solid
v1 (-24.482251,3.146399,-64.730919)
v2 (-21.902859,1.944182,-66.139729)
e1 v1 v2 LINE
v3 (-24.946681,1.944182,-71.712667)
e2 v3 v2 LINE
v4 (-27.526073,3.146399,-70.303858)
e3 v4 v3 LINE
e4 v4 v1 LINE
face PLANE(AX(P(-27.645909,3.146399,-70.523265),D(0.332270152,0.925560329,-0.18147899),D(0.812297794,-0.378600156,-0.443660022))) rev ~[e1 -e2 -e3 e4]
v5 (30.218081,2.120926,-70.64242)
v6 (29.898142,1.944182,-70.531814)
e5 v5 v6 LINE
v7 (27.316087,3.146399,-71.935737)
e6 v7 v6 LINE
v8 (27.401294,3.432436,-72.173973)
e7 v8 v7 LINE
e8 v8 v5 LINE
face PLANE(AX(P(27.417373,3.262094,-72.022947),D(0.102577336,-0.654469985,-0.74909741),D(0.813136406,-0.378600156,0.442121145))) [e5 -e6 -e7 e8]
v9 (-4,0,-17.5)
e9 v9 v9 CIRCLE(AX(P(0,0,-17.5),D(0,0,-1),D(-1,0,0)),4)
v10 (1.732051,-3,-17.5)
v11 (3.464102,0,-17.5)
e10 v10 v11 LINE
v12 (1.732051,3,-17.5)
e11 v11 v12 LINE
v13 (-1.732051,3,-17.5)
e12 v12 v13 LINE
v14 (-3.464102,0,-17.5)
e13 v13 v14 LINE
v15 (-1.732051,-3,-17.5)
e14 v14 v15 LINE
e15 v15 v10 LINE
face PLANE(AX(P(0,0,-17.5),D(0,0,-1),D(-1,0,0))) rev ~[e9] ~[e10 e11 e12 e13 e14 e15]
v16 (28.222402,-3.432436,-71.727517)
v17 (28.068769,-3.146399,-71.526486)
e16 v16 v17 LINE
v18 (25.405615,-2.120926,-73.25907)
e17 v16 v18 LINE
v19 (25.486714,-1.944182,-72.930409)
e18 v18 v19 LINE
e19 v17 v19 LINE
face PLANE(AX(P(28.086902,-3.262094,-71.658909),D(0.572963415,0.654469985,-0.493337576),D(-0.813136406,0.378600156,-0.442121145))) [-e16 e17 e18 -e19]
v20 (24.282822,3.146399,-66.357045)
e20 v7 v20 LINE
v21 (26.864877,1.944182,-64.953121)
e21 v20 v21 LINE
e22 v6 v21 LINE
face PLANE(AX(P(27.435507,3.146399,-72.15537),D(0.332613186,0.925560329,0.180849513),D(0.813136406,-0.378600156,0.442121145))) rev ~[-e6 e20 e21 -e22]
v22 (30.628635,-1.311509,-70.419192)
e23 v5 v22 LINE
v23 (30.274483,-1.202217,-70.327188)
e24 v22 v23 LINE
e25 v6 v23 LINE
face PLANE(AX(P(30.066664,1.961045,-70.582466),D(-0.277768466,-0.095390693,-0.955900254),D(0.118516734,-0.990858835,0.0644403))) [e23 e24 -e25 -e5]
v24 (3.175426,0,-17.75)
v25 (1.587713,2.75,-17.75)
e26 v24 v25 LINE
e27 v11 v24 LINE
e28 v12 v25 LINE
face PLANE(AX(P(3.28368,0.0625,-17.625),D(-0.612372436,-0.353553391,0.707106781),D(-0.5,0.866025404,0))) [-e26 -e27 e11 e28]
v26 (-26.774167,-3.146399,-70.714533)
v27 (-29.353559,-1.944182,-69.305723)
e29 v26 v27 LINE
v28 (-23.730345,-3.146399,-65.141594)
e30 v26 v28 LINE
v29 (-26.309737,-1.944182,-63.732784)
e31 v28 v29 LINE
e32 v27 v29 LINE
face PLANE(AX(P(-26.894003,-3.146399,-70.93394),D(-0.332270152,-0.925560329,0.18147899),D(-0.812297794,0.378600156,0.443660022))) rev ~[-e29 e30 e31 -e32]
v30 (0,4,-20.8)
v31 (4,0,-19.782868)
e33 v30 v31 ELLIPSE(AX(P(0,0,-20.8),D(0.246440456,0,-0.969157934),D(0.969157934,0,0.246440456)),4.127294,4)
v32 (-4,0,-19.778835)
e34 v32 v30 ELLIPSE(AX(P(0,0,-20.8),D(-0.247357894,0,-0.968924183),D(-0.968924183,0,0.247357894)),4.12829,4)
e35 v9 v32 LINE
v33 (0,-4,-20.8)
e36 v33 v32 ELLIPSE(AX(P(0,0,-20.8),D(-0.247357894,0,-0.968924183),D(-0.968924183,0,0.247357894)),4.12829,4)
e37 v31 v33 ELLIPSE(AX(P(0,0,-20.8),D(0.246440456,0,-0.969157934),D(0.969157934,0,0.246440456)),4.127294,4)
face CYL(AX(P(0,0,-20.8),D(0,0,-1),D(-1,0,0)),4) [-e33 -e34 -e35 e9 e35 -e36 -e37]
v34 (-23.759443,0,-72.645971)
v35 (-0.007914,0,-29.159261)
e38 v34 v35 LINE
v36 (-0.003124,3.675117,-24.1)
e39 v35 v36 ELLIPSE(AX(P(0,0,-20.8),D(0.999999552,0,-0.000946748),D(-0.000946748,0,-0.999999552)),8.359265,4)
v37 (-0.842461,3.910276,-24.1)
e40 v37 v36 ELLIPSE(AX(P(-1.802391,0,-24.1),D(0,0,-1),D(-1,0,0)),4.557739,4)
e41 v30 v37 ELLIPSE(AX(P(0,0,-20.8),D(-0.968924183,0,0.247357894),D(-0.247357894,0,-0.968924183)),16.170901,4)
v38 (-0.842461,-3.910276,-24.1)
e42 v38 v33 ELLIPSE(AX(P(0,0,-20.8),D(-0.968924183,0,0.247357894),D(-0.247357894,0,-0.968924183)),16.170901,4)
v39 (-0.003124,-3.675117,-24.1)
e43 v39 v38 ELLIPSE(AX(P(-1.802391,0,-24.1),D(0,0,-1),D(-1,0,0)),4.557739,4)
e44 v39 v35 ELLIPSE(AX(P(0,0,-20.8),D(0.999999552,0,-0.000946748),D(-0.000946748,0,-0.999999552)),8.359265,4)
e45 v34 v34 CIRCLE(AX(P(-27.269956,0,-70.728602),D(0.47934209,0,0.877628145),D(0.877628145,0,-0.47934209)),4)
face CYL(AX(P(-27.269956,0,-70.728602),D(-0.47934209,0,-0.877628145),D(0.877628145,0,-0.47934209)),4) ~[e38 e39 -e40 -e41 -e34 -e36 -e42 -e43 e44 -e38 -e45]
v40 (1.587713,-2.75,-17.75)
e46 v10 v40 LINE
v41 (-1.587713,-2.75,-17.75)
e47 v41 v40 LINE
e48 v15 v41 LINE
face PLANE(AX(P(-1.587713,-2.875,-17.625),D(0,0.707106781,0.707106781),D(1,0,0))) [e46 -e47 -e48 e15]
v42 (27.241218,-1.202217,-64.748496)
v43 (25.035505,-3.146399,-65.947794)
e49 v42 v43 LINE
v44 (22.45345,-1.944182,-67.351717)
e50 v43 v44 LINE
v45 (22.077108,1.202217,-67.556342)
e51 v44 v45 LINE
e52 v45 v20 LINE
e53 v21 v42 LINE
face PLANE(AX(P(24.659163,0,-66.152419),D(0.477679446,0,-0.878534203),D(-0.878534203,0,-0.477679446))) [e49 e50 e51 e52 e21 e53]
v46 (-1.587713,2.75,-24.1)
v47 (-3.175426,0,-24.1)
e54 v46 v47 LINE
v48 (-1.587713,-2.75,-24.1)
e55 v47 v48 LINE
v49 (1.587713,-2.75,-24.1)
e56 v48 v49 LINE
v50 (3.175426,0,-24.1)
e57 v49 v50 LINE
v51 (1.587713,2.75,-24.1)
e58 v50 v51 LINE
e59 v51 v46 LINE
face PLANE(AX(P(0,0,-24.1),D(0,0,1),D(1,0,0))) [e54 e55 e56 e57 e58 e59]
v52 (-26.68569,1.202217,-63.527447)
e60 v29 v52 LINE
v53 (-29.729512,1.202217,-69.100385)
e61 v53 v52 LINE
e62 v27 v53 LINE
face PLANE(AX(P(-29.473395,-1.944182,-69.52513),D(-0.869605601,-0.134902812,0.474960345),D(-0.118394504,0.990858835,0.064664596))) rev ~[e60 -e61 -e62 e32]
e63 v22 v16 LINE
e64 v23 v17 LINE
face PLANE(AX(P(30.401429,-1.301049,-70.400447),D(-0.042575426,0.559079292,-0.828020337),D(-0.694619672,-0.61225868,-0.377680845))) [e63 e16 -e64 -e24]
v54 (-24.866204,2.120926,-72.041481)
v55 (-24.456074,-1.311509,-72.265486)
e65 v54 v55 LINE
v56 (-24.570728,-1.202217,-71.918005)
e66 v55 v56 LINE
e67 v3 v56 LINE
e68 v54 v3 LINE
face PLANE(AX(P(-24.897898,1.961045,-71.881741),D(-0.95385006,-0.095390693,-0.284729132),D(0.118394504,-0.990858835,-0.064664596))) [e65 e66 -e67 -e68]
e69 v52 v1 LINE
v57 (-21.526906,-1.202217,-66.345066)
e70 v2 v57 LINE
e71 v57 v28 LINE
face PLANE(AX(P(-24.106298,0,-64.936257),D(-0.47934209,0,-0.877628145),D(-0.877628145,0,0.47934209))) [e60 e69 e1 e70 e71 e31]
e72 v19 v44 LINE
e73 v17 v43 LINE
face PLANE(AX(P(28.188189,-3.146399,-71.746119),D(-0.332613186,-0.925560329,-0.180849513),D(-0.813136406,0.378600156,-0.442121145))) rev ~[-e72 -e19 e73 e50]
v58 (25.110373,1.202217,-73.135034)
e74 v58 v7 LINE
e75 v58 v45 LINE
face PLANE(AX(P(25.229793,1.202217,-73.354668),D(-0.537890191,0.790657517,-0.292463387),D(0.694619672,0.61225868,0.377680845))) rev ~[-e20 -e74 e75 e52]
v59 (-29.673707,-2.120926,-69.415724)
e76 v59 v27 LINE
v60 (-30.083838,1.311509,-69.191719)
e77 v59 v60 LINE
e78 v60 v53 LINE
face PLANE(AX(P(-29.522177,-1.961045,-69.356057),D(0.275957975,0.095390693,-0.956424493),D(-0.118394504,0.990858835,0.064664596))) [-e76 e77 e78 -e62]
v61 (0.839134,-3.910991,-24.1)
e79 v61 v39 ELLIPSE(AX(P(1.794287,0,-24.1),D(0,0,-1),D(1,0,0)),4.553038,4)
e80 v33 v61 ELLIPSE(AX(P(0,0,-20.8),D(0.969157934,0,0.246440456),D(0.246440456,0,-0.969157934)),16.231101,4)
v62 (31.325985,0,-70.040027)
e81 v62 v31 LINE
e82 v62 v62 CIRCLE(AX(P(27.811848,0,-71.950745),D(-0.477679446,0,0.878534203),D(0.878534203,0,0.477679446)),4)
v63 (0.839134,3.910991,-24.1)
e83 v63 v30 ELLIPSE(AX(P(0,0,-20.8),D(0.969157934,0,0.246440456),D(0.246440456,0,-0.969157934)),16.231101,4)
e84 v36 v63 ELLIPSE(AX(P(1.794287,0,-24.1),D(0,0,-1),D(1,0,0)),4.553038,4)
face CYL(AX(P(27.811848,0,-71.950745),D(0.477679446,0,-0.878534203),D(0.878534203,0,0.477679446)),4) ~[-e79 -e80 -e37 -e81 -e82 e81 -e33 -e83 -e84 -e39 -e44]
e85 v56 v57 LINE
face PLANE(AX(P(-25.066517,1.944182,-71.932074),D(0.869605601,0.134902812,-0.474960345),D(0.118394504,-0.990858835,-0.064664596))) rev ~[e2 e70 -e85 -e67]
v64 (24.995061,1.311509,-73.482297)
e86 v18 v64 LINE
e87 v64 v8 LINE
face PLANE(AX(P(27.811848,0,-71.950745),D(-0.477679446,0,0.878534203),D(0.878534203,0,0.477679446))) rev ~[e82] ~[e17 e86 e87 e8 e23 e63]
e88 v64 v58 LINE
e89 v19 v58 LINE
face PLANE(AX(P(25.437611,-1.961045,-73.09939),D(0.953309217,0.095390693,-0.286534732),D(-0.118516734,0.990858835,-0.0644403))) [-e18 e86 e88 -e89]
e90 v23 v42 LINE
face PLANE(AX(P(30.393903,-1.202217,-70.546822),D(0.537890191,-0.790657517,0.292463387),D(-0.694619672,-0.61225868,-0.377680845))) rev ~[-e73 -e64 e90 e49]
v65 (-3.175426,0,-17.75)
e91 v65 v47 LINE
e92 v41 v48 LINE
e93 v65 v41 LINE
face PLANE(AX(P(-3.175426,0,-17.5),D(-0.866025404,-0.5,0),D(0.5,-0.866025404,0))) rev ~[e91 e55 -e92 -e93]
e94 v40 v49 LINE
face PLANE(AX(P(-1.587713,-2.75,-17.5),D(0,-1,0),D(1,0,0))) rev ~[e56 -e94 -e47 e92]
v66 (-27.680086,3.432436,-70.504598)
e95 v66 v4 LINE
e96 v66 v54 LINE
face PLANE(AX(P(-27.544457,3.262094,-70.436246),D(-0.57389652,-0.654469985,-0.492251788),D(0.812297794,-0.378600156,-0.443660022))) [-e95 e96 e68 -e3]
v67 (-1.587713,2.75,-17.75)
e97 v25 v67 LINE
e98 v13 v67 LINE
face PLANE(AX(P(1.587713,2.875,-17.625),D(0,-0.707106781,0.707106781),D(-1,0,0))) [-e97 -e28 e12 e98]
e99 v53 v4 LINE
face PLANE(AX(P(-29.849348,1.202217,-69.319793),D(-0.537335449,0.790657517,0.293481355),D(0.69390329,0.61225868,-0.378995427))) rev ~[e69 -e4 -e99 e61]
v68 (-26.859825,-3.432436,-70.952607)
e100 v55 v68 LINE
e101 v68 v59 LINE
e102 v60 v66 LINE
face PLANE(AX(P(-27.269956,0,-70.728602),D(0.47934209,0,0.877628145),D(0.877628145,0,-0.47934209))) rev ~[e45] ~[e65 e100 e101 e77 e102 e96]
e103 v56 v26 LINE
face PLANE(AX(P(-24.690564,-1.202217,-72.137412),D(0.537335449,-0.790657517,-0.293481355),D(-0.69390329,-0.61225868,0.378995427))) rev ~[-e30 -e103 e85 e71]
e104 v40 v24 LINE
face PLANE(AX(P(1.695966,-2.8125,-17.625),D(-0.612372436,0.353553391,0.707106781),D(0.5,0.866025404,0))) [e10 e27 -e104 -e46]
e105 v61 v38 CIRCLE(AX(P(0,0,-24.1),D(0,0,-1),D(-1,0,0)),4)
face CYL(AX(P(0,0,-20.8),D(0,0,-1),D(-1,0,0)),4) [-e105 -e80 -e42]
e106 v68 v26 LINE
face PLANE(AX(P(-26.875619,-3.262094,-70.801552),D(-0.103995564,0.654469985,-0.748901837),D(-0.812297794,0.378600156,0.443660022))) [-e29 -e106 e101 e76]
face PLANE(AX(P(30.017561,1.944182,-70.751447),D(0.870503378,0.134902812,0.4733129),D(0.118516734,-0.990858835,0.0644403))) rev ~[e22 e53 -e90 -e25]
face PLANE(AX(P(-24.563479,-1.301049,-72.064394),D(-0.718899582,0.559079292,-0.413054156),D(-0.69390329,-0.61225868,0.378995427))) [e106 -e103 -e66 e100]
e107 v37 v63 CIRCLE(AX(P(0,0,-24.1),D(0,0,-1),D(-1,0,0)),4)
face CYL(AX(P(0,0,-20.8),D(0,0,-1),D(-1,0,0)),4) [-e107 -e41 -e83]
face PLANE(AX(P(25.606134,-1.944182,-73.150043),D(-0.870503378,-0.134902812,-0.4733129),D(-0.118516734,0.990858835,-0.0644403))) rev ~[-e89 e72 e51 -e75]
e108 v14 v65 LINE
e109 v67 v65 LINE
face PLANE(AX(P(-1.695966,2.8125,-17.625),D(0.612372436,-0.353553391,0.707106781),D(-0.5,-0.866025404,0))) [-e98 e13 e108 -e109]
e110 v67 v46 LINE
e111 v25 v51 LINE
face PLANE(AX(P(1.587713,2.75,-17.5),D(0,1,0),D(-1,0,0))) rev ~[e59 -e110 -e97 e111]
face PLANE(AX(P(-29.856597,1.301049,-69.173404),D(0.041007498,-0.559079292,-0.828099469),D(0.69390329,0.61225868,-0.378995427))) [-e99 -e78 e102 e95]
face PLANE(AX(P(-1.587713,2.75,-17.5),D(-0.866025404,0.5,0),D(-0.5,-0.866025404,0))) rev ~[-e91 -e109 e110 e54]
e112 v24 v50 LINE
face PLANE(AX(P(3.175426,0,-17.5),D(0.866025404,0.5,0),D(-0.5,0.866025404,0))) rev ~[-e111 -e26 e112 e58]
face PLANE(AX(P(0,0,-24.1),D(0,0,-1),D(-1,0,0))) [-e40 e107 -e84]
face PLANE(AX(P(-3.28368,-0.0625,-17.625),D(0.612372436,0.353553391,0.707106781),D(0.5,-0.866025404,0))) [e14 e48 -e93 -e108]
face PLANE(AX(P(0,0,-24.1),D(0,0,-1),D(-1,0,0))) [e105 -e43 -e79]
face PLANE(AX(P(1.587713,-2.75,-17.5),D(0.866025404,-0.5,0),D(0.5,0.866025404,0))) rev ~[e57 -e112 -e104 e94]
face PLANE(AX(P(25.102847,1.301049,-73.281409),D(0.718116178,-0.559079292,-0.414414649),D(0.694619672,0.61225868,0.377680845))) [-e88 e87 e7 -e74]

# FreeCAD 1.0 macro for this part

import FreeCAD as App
import Part
import Sketcher
from FreeCAD import Vector
Q = App.Units.Quantity


def edges_at(feature, points):
    """Names of the edges that pass closest to the given points."""
    edges = feature.Shape.Edges
    near = lambda p: min(range(len(edges)), key=lambda i: edges[i].distToShape(Part.Vertex(*p))[0])
    return sorted({f"Edge{near(p) + 1}" for p in points})

doc = App.newDocument("Part")
body = doc.addObject("PartDesign::Body", "Body")

# Sketch on XZ plane
sketch1 = body.newObject("Sketcher::SketchObject", "Sketch")
sketch1.AttachmentSupport = (doc.getObject("XZ_Plane"), [""])
sketch1.MapMode = "FlatFace"
sketch1.addGeometry(Part.LineSegment(Vector(-4, -24.1, 0), Vector(-4, -17.5, 0)), False)
sketch1.addGeometry(Part.LineSegment(Vector(-4, -17.5, 0), Vector(0, -17.5, 0)), False)
sketch1.addGeometry(Part.LineSegment(Vector(0, -17.5, 0), Vector(0, -24.1, 0)), False)
sketch1.addGeometry(Part.LineSegment(Vector(0, -24.1, 0), Vector(-4, -24.1, 0)), False)
sketch1.addConstraint(Sketcher.Constraint("Coincident", 0, 2, 1, 1))
sketch1.addConstraint(Sketcher.Constraint("Coincident", 1, 2, 2, 1))
sketch1.addConstraint(Sketcher.Constraint("Coincident", 2, 2, 3, 1))
sketch1.addConstraint(Sketcher.Constraint("Coincident", 3, 2, 0, 1))
sketch1.addConstraint(Sketcher.Constraint("Vertical", 0))
sketch1.addConstraint(Sketcher.Constraint("Horizontal", 1))
sketch1.addConstraint(Sketcher.Constraint("Vertical", 2))
sketch1.addConstraint(Sketcher.Constraint("Horizontal", 3))
sketch1.addConstraint(Sketcher.Constraint("PointOnObject", 1, 2, -2))
sketch1.addConstraint(Sketcher.Constraint("DistanceX", 1, 1, 1, 2, Q("4 mm")))
sketch1.addConstraint(Sketcher.Constraint("DistanceY", 0, 1, 0, 2, Q("6.6 mm")))
sketch1.addConstraint(Sketcher.Constraint("DistanceY", 0, 2, -1, 1, Q("17.5 mm")))
revolution = body.newObject("PartDesign::Revolution", "Revolution")
revolution.Profile = sketch1
revolution.ReferenceAxis = (sketch1, ["V_Axis"])
revolution.Angle = 360

# Sketch on an angled plane
sketch2 = body.newObject("Sketcher::SketchObject", "Sketch001")
sketch2.Placement = App.Placement(Vector(-36.020185, 0, -65.94941), App.Rotation(Vector(0.877628145, 0, -0.47934209), Vector(0, 1, 0), Vector(0.47934209, 0, 0.877628145), "ZXY"))
sketch2.addGeometry(Part.Circle(Vector(10, 0, 0), Vector(0, 0, 1), 4), False)
sketch2.addConstraint(Sketcher.Constraint("PointOnObject", 0, 3, -1))
sketch2.addConstraint(Sketcher.Constraint("Diameter", 0, Q("8 mm")))
sketch2.addConstraint(Sketcher.Constraint("DistanceX", -1, 1, 0, 3, Q("9.970315 mm")))
pad1 = body.newObject("PartDesign::Pad", "Pad")
pad1.Profile = sketch2
pad1.Length = 56.890384

# Sketch on an angled plane
sketch3 = body.newObject("Sketcher::SketchObject", "Sketch002")
sketch3.Placement = App.Placement(Vector(36.540729, 0, -67.20465), App.Rotation(Vector(0.878534203, 0, 0.477679446), Vector(0, 0.999999999, 0), Vector(-0.477679446, 0, 0.878534203), "ZXY"))
sketch3.addGeometry(Part.Circle(Vector(-9.9, 0, 0), Vector(0, 0, 1), 4), False)
sketch3.addConstraint(Sketcher.Constraint("PointOnObject", 0, 3, -1))
sketch3.addConstraint(Sketcher.Constraint("Diameter", 0, Q("8 mm")))
sketch3.addConstraint(Sketcher.Constraint("DistanceX", 0, 3, -1, 1, Q("9.935732 mm")))
pad2 = body.newObject("PartDesign::Pad", "Pad001")
pad2.Profile = sketch3
pad2.Type = "UpToFirst"

# Sketch on an angled plane
sketch4 = body.newObject("Sketcher::SketchObject", "Sketch003")
sketch4.Placement = App.Placement(Vector(-36.020185, 0, -65.94941), App.Rotation(Vector(-0.877628145, 0, 0.47934209), Vector(0, 1, 0), Vector(-0.47934209, 0, -0.877628145), "ZXY"))
sketch4.addGeometry(Part.LineSegment(Vector(-7, 1.2, 0), Vector(-9.5, 3.1, 0)), False)
sketch4.addGeometry(Part.LineSegment(Vector(-9.5, 3.1, 0), Vector(-12.5, 1.9, 0)), False)
sketch4.addGeometry(Part.LineSegment(Vector(-12.5, 1.9, 0), Vector(-12.9, -1.2, 0)), False)
sketch4.addGeometry(Part.LineSegment(Vector(-12.9, -1.2, 0), Vector(-10.4, -3.1, 0)), False)
sketch4.addGeometry(Part.LineSegment(Vector(-10.4, -3.1, 0), Vector(-7.5, -1.9, 0)), False)
sketch4.addGeometry(Part.LineSegment(Vector(-7.5, -1.9, 0), Vector(-7, 1.2, 0)), False)
sketch4.addConstraint(Sketcher.Constraint("Coincident", 0, 2, 1, 1))
sketch4.addConstraint(Sketcher.Constraint("Coincident", 1, 2, 2, 1))
sketch4.addConstraint(Sketcher.Constraint("Coincident", 2, 2, 3, 1))
sketch4.addConstraint(Sketcher.Constraint("Coincident", 3, 2, 4, 1))
sketch4.addConstraint(Sketcher.Constraint("Coincident", 4, 2, 5, 1))
sketch4.addConstraint(Sketcher.Constraint("Coincident", 5, 2, 0, 1))
sketch4.addConstraint(Sketcher.Constraint("Parallel", 0, 3))
sketch4.addConstraint(Sketcher.Constraint("Parallel", 1, 4))
sketch4.addConstraint(Sketcher.Constraint("Parallel", 2, 5))
sketch4.addConstraint(Sketcher.Constraint("Equal", 0, 1))
sketch4.addConstraint(Sketcher.Constraint("Equal", 1, 2))
sketch4.addConstraint(Sketcher.Constraint("Equal", 2, 3))
sketch4.addConstraint(Sketcher.Constraint("DistanceY", -1, 1, 0, 2, Q("3.146399 mm")))
sketch4.addConstraint(Sketcher.Constraint("DistanceY", 3, 2, -1, 1, Q("3.146399 mm")))
sketch4.addConstraint(Sketcher.Constraint("DistanceY", 2, 2, 1, 2, Q("3.146399 mm")))
sketch4.addConstraint(Sketcher.Constraint("DistanceX", 1, 2, 3, 2, Q("2.082301 mm")))
sketch4.addConstraint(Sketcher.Constraint("DistanceX", 0, 2, -1, 1, Q("9.541942 mm")))
sketch4.addConstraint(Sketcher.Constraint("DistanceX", 1, 2, -1, 1, Q("12.48099 mm")))
pocket1 = body.newObject("PartDesign::Pocket", "Pocket")
pocket1.Profile = sketch4
pocket1.Length = 6.6

# Sketch on an angled plane
sketch5 = body.newObject("Sketcher::SketchObject", "Sketch004")
sketch5.Placement = App.Placement(Vector(36.540729, 0, -67.20465), App.Rotation(Vector(-0.878534203, 0, -0.477679446), Vector(0, 0.999999999, 0), Vector(0.477679446, 0, -0.878534203), "ZXY"))
sketch5.addGeometry(Part.LineSegment(Vector(12.9, 1.2, 0), Vector(10.4, 3.1, 0)), False)
sketch5.addGeometry(Part.LineSegment(Vector(10.4, 3.1, 0), Vector(7.4, 1.9, 0)), False)
sketch5.addGeometry(Part.LineSegment(Vector(7.4, 1.9, 0), Vector(7, -1.2, 0)), False)
sketch5.addGeometry(Part.LineSegment(Vector(7, -1.2, 0), Vector(9.5, -3.1, 0)), False)
sketch5.addGeometry(Part.LineSegment(Vector(9.5, -3.1, 0), Vector(12.4, -1.9, 0)), False)
sketch5.addGeometry(Part.LineSegment(Vector(12.4, -1.9, 0), Vector(12.9, 1.2, 0)), False)
sketch5.addConstraint(Sketcher.Constraint("Coincident", 0, 2, 1, 1))
sketch5.addConstraint(Sketcher.Constraint("Coincident", 1, 2, 2, 1))
sketch5.addConstraint(Sketcher.Constraint("Coincident", 2, 2, 3, 1))
sketch5.addConstraint(Sketcher.Constraint("Coincident", 3, 2, 4, 1))
sketch5.addConstraint(Sketcher.Constraint("Coincident", 4, 2, 5, 1))
sketch5.addConstraint(Sketcher.Constraint("Coincident", 5, 2, 0, 1))
sketch5.addConstraint(Sketcher.Constraint("Parallel", 0, 3))
sketch5.addConstraint(Sketcher.Constraint("Parallel", 1, 4))
sketch5.addConstraint(Sketcher.Constraint("Parallel", 2, 5))
sketch5.addConstraint(Sketcher.Constraint("Equal", 0, 1))
sketch5.addConstraint(Sketcher.Constraint("Equal", 1, 2))
sketch5.addConstraint(Sketcher.Constraint("Equal", 2, 3))
sketch5.addConstraint(Sketcher.Constraint("DistanceY", -1, 1, 0, 2, Q("3.146399 mm")))
sketch5.addConstraint(Sketcher.Constraint("DistanceY", 3, 2, -1, 1, Q("3.146399 mm")))
sketch5.addConstraint(Sketcher.Constraint("DistanceY", 2, 2, 1, 2, Q("3.146399 mm")))
sketch5.addConstraint(Sketcher.Constraint("DistanceX", 1, 2, 3, 2, Q("2.082301 mm")))
sketch5.addConstraint(Sketcher.Constraint("DistanceX", -1, 1, 3, 2, Q("9.507359 mm")))
sketch5.addConstraint(Sketcher.Constraint("DistanceX", -1, 1, 5, 2, Q("12.874781 mm")))
pocket2 = body.newObject("PartDesign::Pocket", "Pocket001")
pocket2.Profile = sketch5
pocket2.Length = 6.6

# Sketch on XY plane
sketch6 = body.newObject("Sketcher::SketchObject", "Sketch005")
sketch6.AttachmentSupport = (doc.getObject("XY_Plane"), [""])
sketch6.MapMode = "FlatFace"
sketch6.AttachmentOffset = App.Placement(Vector(0, 0, -17.5), App.Rotation())
sketch6.addGeometry(Part.LineSegment(Vector(1.6, 2.8, 0), Vector(-1.6, 2.8, 0)), False)
sketch6.addGeometry(Part.LineSegment(Vector(-1.6, 2.8, 0), Vector(-3.2, 0, 0)), False)
sketch6.addGeometry(Part.LineSegment(Vector(-3.2, 0, 0), Vector(-1.6, -2.8, 0)), False)
sketch6.addGeometry(Part.LineSegment(Vector(-1.6, -2.8, 0), Vector(1.6, -2.8, 0)), False)
sketch6.addGeometry(Part.LineSegment(Vector(1.6, -2.8, 0), Vector(3.2, 0, 0)), False)
sketch6.addGeometry(Part.LineSegment(Vector(3.2, 0, 0), Vector(1.6, 2.8, 0)), False)
sketch6.addConstraint(Sketcher.Constraint("Coincident", 0, 2, 1, 1))
sketch6.addConstraint(Sketcher.Constraint("Coincident", 1, 2, 2, 1))
sketch6.addConstraint(Sketcher.Constraint("Coincident", 2, 2, 3, 1))
sketch6.addConstraint(Sketcher.Constraint("Coincident", 3, 2, 4, 1))
sketch6.addConstraint(Sketcher.Constraint("Coincident", 4, 2, 5, 1))
sketch6.addConstraint(Sketcher.Constraint("Coincident", 5, 2, 0, 1))
sketch6.addConstraint(Sketcher.Constraint("Horizontal", 0))
sketch6.addConstraint(Sketcher.Constraint("Horizontal", 3))
sketch6.addConstraint(Sketcher.Constraint("Symmetric", 0, 2, 3, 2, -1, 1))
sketch6.addConstraint(Sketcher.Constraint("Symmetric", 1, 2, 4, 2, -1, 1))
sketch6.addConstraint(Sketcher.Constraint("PointOnObject", 1, 2, -1))
sketch6.addConstraint(Sketcher.Constraint("Parallel", 2, 5))
sketch6.addConstraint(Sketcher.Constraint("Vertical", 0, 2, 2, 2))
sketch6.addConstraint(Sketcher.Constraint("Angle", 1, Q("-120 deg")))
sketch6.addConstraint(Sketcher.Constraint("DistanceY", 2, 2, 0, 2, Q("5.5 mm")))
sketch6.addConstraint(Sketcher.Constraint("DistanceX", 0, 2, 0, 1, Q("3.175426 mm")))
pocket3 = body.newObject("PartDesign::Pocket", "Pocket002")
pocket3.Profile = sketch6
pocket3.Length = 6.6
doc.recompute()

chamfer = body.newObject("PartDesign::Chamfer", "Chamfer")
chamfer.Base = (pocket3, edges_at(pocket3, [
    (-29.661, -0.371, -69.422),
    (-28.748, 2.174, -69.922),
    (-26.356, 2.545, -71.228),
    (-24.879, 0.371, -72.035),
    (-25.792, -2.174, -71.536),
    (-28.184, -2.545, -70.23),
    (25.418, -0.371, -73.252),
    (26.333, 2.174, -72.755),
    (28.727, 2.545, -71.453),
    (30.206, 0.371, -70.649),
    (29.291, -2.174, -71.146),
    (26.897, -2.545, -72.448),
    (2.382, 1.375, -17.5),
    (0, 2.75, -17.5),
    (-2.382, 1.375, -17.5),
    (-2.382, -1.375, -17.5),
    (0, -2.75, -17.5),
    (2.382, -1.375, -17.5),
]))
chamfer.Size = 0.25

doc.recompute()
